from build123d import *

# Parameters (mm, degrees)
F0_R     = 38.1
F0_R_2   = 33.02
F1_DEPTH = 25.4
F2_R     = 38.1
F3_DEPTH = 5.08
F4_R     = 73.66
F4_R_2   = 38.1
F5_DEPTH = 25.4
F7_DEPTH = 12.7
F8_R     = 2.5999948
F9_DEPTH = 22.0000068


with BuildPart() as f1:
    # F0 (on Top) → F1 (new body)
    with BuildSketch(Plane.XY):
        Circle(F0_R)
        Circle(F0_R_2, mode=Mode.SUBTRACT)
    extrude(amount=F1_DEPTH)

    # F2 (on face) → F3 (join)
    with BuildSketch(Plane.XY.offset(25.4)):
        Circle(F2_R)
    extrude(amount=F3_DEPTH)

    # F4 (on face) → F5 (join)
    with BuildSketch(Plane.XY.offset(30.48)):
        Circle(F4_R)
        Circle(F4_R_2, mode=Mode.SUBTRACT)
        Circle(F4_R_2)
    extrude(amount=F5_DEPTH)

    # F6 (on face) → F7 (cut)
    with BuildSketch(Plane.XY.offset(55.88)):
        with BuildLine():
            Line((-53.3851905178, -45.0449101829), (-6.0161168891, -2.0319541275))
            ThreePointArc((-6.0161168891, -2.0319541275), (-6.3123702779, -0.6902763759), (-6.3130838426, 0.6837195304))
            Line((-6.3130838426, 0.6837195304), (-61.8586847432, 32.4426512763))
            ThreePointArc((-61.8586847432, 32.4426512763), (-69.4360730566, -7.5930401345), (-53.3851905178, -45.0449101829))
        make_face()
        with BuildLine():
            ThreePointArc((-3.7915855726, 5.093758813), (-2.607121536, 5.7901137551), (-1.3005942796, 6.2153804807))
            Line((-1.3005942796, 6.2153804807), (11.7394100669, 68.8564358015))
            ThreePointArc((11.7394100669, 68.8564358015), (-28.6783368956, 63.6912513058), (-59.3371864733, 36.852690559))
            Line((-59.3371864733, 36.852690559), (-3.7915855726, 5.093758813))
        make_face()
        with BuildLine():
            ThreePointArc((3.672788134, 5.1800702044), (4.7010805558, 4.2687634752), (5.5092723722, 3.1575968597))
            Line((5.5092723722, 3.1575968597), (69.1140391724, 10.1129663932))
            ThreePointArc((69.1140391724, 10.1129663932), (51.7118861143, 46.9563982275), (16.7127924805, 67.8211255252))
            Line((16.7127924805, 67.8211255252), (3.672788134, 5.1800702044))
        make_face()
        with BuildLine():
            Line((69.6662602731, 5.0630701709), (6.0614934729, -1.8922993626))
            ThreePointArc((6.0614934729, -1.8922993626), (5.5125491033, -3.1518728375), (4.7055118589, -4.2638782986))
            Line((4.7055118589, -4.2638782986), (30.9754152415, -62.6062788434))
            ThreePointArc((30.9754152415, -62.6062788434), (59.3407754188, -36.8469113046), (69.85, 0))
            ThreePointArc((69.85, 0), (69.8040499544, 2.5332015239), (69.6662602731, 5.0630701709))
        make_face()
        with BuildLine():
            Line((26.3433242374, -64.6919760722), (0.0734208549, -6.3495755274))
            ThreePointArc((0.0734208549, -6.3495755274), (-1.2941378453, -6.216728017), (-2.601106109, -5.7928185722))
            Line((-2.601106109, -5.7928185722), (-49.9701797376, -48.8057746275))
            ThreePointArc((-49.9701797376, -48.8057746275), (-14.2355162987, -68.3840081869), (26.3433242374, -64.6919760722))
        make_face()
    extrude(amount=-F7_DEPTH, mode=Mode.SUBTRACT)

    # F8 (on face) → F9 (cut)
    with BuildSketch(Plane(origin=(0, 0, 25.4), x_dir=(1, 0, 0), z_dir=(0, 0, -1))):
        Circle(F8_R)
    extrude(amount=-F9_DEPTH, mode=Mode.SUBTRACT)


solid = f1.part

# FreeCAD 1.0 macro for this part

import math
import FreeCAD as App
import Part
import Sketcher
Q = App.Units.Quantity

doc = App.newDocument("Part")
body = doc.addObject("PartDesign::Body", "Body")

# Sketch on XY plane
sketch1 = doc.addObject("Sketcher::SketchObject", "Sketch")
body.addObject(sketch1)
sketch1.AttachmentSupport = (doc.XY_Plane, [""])
sketch1.MapMode = "FlatFace"
sketch1.addGeometry([
    Part.Circle(App.Vector(0, 0, 0), App.Vector(0, 0, 1), 38),
    Part.Circle(App.Vector(0, 0, 0), App.Vector(0, 0, 1), 33),
], False)
sketch1.addConstraint([
    Sketcher.Constraint("Coincident", 0, 3, -1, 1),
    Sketcher.Constraint("Coincident", 1, 3, -1, 1),
    Sketcher.Constraint("Diameter", 0, Q("3 in")),
    Sketcher.Constraint("Diameter", 1, Q("2.6 in")),
])
pad1 = doc.addObject("PartDesign::Pad", "Pad")
body.addObject(pad1)
pad1.Profile = sketch1
pad1.Length = Q("1 in")

# Sketch on XY plane
sketch2 = doc.addObject("Sketcher::SketchObject", "Sketch001")
body.addObject(sketch2)
sketch2.AttachmentSupport = (doc.XY_Plane, [""])
sketch2.MapMode = "FlatFace"
sketch2.AttachmentOffset = App.Placement(App.Vector(0, 0, 1 * 25.4), App.Rotation())
sketch2.addGeometry(Part.Circle(App.Vector(0, 0, 0), App.Vector(0, 0, 1), 38), False)
sketch2.addConstraint([
    Sketcher.Constraint("Coincident", 0, 3, -1, 1),
    Sketcher.Constraint("Diameter", 0, Q("3 in")),
])
pad2 = doc.addObject("PartDesign::Pad", "Pad001")
body.addObject(pad2)
pad2.Profile = sketch2
pad2.Length = Q("0.2 in")

# Sketch on XY plane
sketch3 = doc.addObject("Sketcher::SketchObject", "Sketch002")
body.addObject(sketch3)
sketch3.AttachmentSupport = (doc.XY_Plane, [""])
sketch3.MapMode = "FlatFace"
sketch3.AttachmentOffset = App.Placement(App.Vector(0, 0, 1.2 * 25.4), App.Rotation())
sketch3.addGeometry(Part.Circle(App.Vector(0, 0, 0), App.Vector(0, 0, 1), 74), False)
sketch3.addConstraint([
    Sketcher.Constraint("Coincident", 0, 3, -1, 1),
    Sketcher.Constraint("Diameter", 0, Q("5.8 in")),
])
pad3 = doc.addObject("PartDesign::Pad", "Pad002")
body.addObject(pad3)
pad3.Profile = sketch3
pad3.Length = Q("1 in")

# Sketch on XY plane
sketch4 = doc.addObject("Sketcher::SketchObject", "Sketch003")
body.addObject(sketch4)
sketch4.AttachmentSupport = (doc.XY_Plane, [""])
sketch4.MapMode = "FlatFace"
sketch4.AttachmentOffset = App.Placement(App.Vector(0, 0, 2.2 * 25.4), App.Rotation())
sketch4.addGeometry([
    Part.LineSegment(App.Vector(-53.385191, -45.04491, 0), App.Vector(-6.016117, -2.031954, 0)),  # 0
    Part.ArcOfCircle(Part.Circle(App.Vector(0, 0, 0), App.Vector(0, 0, 1), 6.35), math.radians(173.818845), math.radians(198.662488)),  # 1
    Part.LineSegment(App.Vector(-6.313084, 0.68372, 0), App.Vector(-61.858685, 32.442651, 0)),  # 2
    Part.ArcOfCircle(Part.Circle(App.Vector(0, 0, 0), App.Vector(0, 0, 1), 69.85), math.radians(152.324609), math.radians(220.156724)),  # 3
    Part.ArcOfCircle(Part.Circle(App.Vector(0, 0, 0), App.Vector(0, 0, 1), 6.35), math.radians(101.818845), math.radians(126.662488)),  # 4
    Part.LineSegment(App.Vector(-1.300594, 6.21538, 0), App.Vector(11.73941, 68.856436, 0)),  # 5
    Part.ArcOfCircle(Part.Circle(App.Vector(0, 0, 0), App.Vector(0, 0, 1), 69.85), math.radians(80.324609), math.radians(148.156724)),  # 6
    Part.LineSegment(App.Vector(-59.337186, 36.852691, 0), App.Vector(-3.791586, 5.093759, 0)),  # 7
    Part.ArcOfCircle(Part.Circle(App.Vector(0, 0, 0), App.Vector(0, 0, 1), 6.35), math.radians(29.818845), math.radians(54.662488)),  # 8
    Part.LineSegment(App.Vector(5.509272, 3.157597, 0), App.Vector(69.114039, 10.112966, 0)),  # 9
    Part.ArcOfCircle(Part.Circle(App.Vector(0, 0, 0), App.Vector(0, 0, 1), 69.85), math.radians(8.324609), math.radians(76.156724)),  # 10
    Part.LineSegment(App.Vector(16.712792, 67.821126, 0), App.Vector(3.672788, 5.18007, 0)),  # 11
    Part.LineSegment(App.Vector(69.66626, 5.06307, 0), App.Vector(6.061493, -1.892299, 0)),  # 12
    Part.ArcOfCircle(Part.Circle(App.Vector(0, 0, 0), App.Vector(0, 0, 1), 6.35), math.radians(-42.181155), math.radians(-17.337512)),  # 13
    Part.LineSegment(App.Vector(4.705512, -4.263878, 0), App.Vector(30.975415, -62.606279, 0)),  # 14
    Part.ArcOfCircle(Part.Circle(App.Vector(0, 0, 0), App.Vector(0, 0, 1), 69.85), math.radians(-63.675391), math.radians(0)),  # 15
    Part.ArcOfCircle(Part.Circle(App.Vector(0, 0, 0), App.Vector(0, 0, 1), 69.85), math.radians(0), math.radians(4.156724)),  # 16
    Part.LineSegment(App.Vector(26.343324, -64.691976, 0), App.Vector(0.073421, -6.349576, 0)),  # 17
    Part.ArcOfCircle(Part.Circle(App.Vector(0, 0, 0), App.Vector(0, 0, 1), 6.35), math.radians(-114.181155), math.radians(-89.337512)),  # 18
    Part.LineSegment(App.Vector(-2.601106, -5.792819, 0), App.Vector(-49.97018, -48.805775, 0)),  # 19
    Part.ArcOfCircle(Part.Circle(App.Vector(0, 0, 0), App.Vector(0, 0, 1), 69.85), math.radians(-135.675391), math.radians(-67.843276)),  # 20
], False)
sketch4.addConstraint([
    Sketcher.Constraint("Coincident", 0, 2, 1, 2),
    Sketcher.Constraint("Coincident", 1, 1, 2, 1),
    Sketcher.Constraint("Coincident", 2, 2, 3, 1),
    Sketcher.Constraint("Coincident", 3, 2, 0, 1),
    Sketcher.Constraint("Coincident", 4, 1, 5, 1),
    Sketcher.Constraint("Coincident", 5, 2, 6, 1),
    Sketcher.Constraint("Coincident", 6, 2, 7, 1),
    Sketcher.Constraint("Coincident", 7, 2, 4, 2),
    Sketcher.Constraint("Coincident", 8, 1, 9, 1),
    Sketcher.Constraint("Coincident", 9, 2, 10, 1),
    Sketcher.Constraint("Coincident", 10, 2, 11, 1),
    Sketcher.Constraint("Coincident", 11, 2, 8, 2),
    Sketcher.Constraint("Coincident", 12, 2, 13, 2),
    Sketcher.Constraint("Coincident", 13, 1, 14, 1),
    Sketcher.Constraint("Coincident", 14, 2, 15, 1),
    Sketcher.Constraint("Coincident", 15, 2, 16, 1),
    Sketcher.Constraint("Coincident", 16, 2, 12, 1),
    Sketcher.Constraint("Coincident", 17, 2, 18, 2),
    Sketcher.Constraint("Coincident", 18, 1, 19, 1),
    Sketcher.Constraint("Coincident", 19, 2, 20, 1),
    Sketcher.Constraint("Coincident", 20, 2, 17, 1),
    Sketcher.Constraint("Coincident", 1, 3, -1, 1),
    Sketcher.Constraint("Coincident", 3, 3, -1, 1),
    Sketcher.Constraint("Coincident", 4, 3, -1, 1),
    Sketcher.Constraint("Coincident", 6, 3, -1, 1),
    Sketcher.Constraint("Coincident", 8, 3, -1, 1),
    Sketcher.Constraint("Coincident", 10, 3, -1, 1),
    Sketcher.Constraint("Coincident", 13, 3, -1, 1),
    Sketcher.Constraint("Coincident", 15, 3, -1, 1),
    Sketcher.Constraint("Coincident", 16, 3, -1, 1),
    Sketcher.Constraint("Coincident", 18, 3, -1, 1),
    Sketcher.Constraint("Coincident", 20, 3, -1, 1),
    Sketcher.Constraint("PointOnObject", 15, 2, -1),
    Sketcher.Constraint("Radius", 1, Q("0.25 in")),
    Sketcher.Constraint("Radius", 3, Q("2.75 in")),
    Sketcher.Constraint("Radius", 4, Q("0.25 in")),
    Sketcher.Constraint("Radius", 6, Q("2.75 in")),
    Sketcher.Constraint("Radius", 8, Q("0.25 in")),
    Sketcher.Constraint("Radius", 10, Q("2.75 in")),
    Sketcher.Constraint("Radius", 13, Q("0.25 in")),
    Sketcher.Constraint("Radius", 15, Q("2.75 in")),
    Sketcher.Constraint("Radius", 18, Q("0.25 in")),
    Sketcher.Constraint("Radius", 20, Q("2.75 in")),
    Sketcher.Constraint("DistanceY", -1, 1, 4, 1, Q("0.2447 in")),
    Sketcher.Constraint("DistanceY", 12, 2, -1, 1, Q("0.0745 in")),
    Sketcher.Constraint("DistanceX", 2, 2, 1, 1, 55.545601),
    Sketcher.Constraint("DistanceX", 2, 2, 6, 2, 2.521498),
    Sketcher.Constraint("DistanceX", 1, 1, 7, 2, 2.521498),
    Sketcher.Constraint("DistanceY", 14, 2, 13, 1, 58.342401),
    Sketcher.Constraint("DistanceX", 19, 2, 17, 2, 50.043601),
    Sketcher.Constraint("DistanceY", 19, 2, 17, 2, 42.456199),
    Sketcher.Constraint("DistanceY", 20, 2, 17, 2, 58.342401),
    Sketcher.Constraint("Distance", 0, 63.983932),
    Sketcher.Constraint("Distance", 2, 63.983932),
    Sketcher.Constraint("Distance", 5, 63.983932),
    Sketcher.Constraint("Distance", 9, 63.983932),
    Sketcher.Constraint("Distance", 11, 63.983932),
    Sketcher.Constraint("Distance", 12, 63.983932),
    Sketcher.Constraint("Distance", 14, 63.983932),
    Sketcher.Constraint("Distance", 19, 63.983932),
    Sketcher.Constraint("DistanceX", 3, 2, -1, 1, 53.385191),
    Sketcher.Constraint("DistanceX", -1, 1, 9, 2, 69.114039),
    Sketcher.Constraint("DistanceX", -1, 1, 11, 2, 3.672788),
])
pocket1 = doc.addObject("PartDesign::Pocket", "Pocket")
body.addObject(pocket1)
pocket1.Profile = sketch4
pocket1.Length = Q("0.5 in")

# Sketch on XY plane
sketch5 = doc.addObject("Sketcher::SketchObject", "Sketch004")
body.addObject(sketch5)
sketch5.AttachmentSupport = (doc.XY_Plane, [""])
sketch5.MapMode = "FlatFace"
sketch5.AttachmentOffset = App.Placement(App.Vector(0, 0, 1 * 25.4), App.Rotation())
sketch5.addGeometry(Part.Circle(App.Vector(0, 0, 0), App.Vector(0, 0, 1), 2.6), False)
sketch5.addConstraint([
    Sketcher.Constraint("Coincident", 0, 3, -1, 1),
    Sketcher.Constraint("Diameter", 0, 5.19999),
])
pocket2 = doc.addObject("PartDesign::Pocket", "Pocket001")
body.addObject(pocket2)
pocket2.Profile = sketch5
pocket2.Length = 22.000007
pocket2.Reversed = True

doc.recompute()
